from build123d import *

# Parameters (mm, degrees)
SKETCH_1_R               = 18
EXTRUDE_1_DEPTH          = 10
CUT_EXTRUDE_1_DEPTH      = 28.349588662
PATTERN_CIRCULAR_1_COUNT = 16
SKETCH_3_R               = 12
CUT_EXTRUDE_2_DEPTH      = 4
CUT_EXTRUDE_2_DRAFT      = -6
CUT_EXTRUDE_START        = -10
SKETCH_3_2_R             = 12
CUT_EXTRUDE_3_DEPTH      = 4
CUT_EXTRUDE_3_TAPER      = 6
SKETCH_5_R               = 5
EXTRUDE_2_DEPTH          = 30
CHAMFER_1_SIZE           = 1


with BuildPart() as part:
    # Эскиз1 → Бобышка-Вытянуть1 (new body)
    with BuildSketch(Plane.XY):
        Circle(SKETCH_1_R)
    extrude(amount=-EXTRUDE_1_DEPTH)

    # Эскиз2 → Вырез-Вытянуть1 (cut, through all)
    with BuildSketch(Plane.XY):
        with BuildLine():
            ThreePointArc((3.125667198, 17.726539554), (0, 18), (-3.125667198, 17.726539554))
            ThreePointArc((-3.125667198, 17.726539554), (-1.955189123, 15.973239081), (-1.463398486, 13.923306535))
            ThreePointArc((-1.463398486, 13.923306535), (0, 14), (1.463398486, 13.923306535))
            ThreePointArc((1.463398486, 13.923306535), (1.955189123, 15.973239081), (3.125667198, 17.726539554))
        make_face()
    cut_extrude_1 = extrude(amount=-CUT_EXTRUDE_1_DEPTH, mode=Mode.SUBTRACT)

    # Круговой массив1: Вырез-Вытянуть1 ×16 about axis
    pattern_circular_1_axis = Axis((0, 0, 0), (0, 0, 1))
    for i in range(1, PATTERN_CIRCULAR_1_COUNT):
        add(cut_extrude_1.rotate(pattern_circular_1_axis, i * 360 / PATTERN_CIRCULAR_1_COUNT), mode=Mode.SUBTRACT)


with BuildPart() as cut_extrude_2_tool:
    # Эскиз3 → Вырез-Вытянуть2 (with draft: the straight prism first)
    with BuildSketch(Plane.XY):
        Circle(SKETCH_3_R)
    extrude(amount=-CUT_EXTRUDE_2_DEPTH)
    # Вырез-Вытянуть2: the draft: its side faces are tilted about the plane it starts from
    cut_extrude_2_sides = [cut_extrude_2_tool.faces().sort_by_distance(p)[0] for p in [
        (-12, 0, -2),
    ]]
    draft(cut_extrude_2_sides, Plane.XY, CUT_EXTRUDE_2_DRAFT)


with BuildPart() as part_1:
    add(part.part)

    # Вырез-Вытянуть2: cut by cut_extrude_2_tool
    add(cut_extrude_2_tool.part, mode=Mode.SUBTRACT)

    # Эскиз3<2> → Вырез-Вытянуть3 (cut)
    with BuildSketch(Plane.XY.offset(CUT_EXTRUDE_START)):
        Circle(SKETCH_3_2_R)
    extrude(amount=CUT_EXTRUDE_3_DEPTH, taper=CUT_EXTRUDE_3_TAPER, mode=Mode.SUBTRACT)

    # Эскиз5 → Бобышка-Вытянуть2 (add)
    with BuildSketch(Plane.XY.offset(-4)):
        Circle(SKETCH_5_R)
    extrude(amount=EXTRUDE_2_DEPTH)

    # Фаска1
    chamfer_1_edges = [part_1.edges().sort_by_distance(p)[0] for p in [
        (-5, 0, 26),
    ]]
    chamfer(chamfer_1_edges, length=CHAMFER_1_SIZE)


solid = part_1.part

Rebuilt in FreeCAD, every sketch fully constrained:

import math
import FreeCAD as App
import Part
import Sketcher
from FreeCAD import Vector


def edges_at(feature, points):
    """Names of the edges that pass closest to the given points."""
    edges = feature.Shape.Edges
    near = lambda p: min(range(len(edges)), key=lambda i: edges[i].distToShape(Part.Vertex(*p))[0])
    return sorted({f"Edge{near(p) + 1}" for p in points})


def faces_at(feature, points):
    """Names of the faces that lie closest to the given points."""
    faces = feature.Shape.Faces
    near = lambda p: min(range(len(faces)), key=lambda i: faces[i].distToShape(Part.Vertex(*p))[0])
    return sorted({f"Face{near(p) + 1}" for p in points})

doc = App.newDocument("Part")
params = doc.addObject("Spreadsheet::Sheet", "Params")
for row, (alias, value) in enumerate([
    ("sketch1_diameter", "36 mm"),
    ("pad1_length", "10 mm"),
    ("sketch2_radius", "18 mm"),
    ("sketch2_radius2", "6 mm"),
    ("sketch2_radius3", "14 mm"),
    ("sketch3_diameter", "24 mm"),
    ("pad2_length", "4 mm"),
    ("draft_angle", "6 deg"),
    ("sketch4_diameter", "24 mm"),
    ("pocket2_length", "4 mm"),
    ("pocket2_taper", "-6 deg"),
    ("sketch5_diameter", "10 mm"),
    ("pad3_length", "30 mm"),
    ("chamfer_size", "1 mm"),
], start=1):
    params.set(f"A{row}", alias)
    params.set(f"B{row}", "=" + value)
    params.setAlias(f"B{row}", alias)

body = doc.addObject("PartDesign::Body", "Body")

# Sketch on XY plane
sketch1 = body.newObject("Sketcher::SketchObject", "Sketch")
sketch1.AttachmentSupport = (doc.getObject("XY_Plane"), [""])
sketch1.MapMode = "FlatFace"
sketch1.addGeometry(Part.Circle(Vector(0, 0, 0), Vector(0, 0, 1), 18), False)
sketch1.addConstraint(Sketcher.Constraint("Coincident", 0, 3, -1, 1))
sketch1.addConstraint(Sketcher.Constraint("Diameter", 0, 36.0))
sketch1.setExpression("Constraints[1]", "Params.sketch1_diameter")
pad1 = body.newObject("PartDesign::Pad", "Pad")
pad1.Profile = sketch1
pad1.setExpression("Length", "Params.pad1_length")
pad1.Reversed = True

# Sketch on XY plane
sketch2 = body.newObject("Sketcher::SketchObject", "Sketch001")
sketch2.AttachmentSupport = (doc.getObject("XY_Plane"), [""])
sketch2.MapMode = "FlatFace"
sketch2.addGeometry(Part.ArcOfCircle(Part.Circle(Vector(0, 0, 0), Vector(0, 0, 1), 18), math.radians(80), math.radians(100)), False)
sketch2.addGeometry(Part.ArcOfCircle(Part.Circle(Vector(-7.453006, 13.570323, 0), Vector(0, 0, 1), 6), math.radians(3.372691), math.radians(43.844438)), False)
sketch2.addGeometry(Part.ArcOfCircle(Part.Circle(Vector(0, 0, 0), Vector(0, 0, 1), 14), math.radians(84), math.radians(96)), False)
sketch2.addGeometry(Part.ArcOfCircle(Part.Circle(Vector(7.453006, 13.570323, 0), Vector(0, 0, 1), 6), math.radians(136.155562), math.radians(176.627309)), False)
sketch2.addConstraint(Sketcher.Constraint("Coincident", 0, 2, 1, 2))
sketch2.addConstraint(Sketcher.Constraint("Coincident", 1, 1, 2, 2))
sketch2.addConstraint(Sketcher.Constraint("Coincident", 2, 1, 3, 2))
sketch2.addConstraint(Sketcher.Constraint("Coincident", 3, 1, 0, 1))
sketch2.addConstraint(Sketcher.Constraint("Coincident", 0, 3, -1, 1))
sketch2.addConstraint(Sketcher.Constraint("Coincident", 2, 3, -1, 1))
sketch2.addConstraint(Sketcher.Constraint("Equal", 1, 3))
sketch2.addConstraint(Sketcher.Constraint("Symmetric", 1, 3, 3, 3, -2))
sketch2.addConstraint(Sketcher.Constraint("Radius", 0, 18.0))
sketch2.addConstraint(Sketcher.Constraint("Radius", 1, 6.0))
sketch2.addConstraint(Sketcher.Constraint("Radius", 2, 14.0))
sketch2.addConstraint(Sketcher.Constraint("DistanceX", 1, 1, -1, 1, 1.463398))
sketch2.addConstraint(Sketcher.Constraint("DistanceY", -1, 1, 0, 2, 17.72654))
sketch2.setExpression("Constraints[8]", "Params.sketch2_radius")
sketch2.setExpression("Constraints[9]", "Params.sketch2_radius2")
sketch2.setExpression("Constraints[10]", "Params.sketch2_radius3")
pocket1 = body.newObject("PartDesign::Pocket", "Pocket")
pocket1.Profile = sketch2
pocket1.Type = "ThroughAll"
doc.recompute()

polarpattern = body.newObject("PartDesign::PolarPattern", "PolarPattern")
polarpattern.Originals = [pocket1]
polarpattern.Axis = (doc.getObject("Z_Axis"), [""])
polarpattern.Angle = 360
polarpattern.Occurrences = 16
body.Tip = polarpattern
body2 = doc.addObject("PartDesign::Body", "Body001")

# Sketch on XY plane
sketch3 = body2.newObject("Sketcher::SketchObject", "Sketch002")
sketch3.AttachmentSupport = (doc.getObject("XY_Plane001"), [""])
sketch3.MapMode = "FlatFace"
sketch3.addGeometry(Part.Circle(Vector(0, 0, 0), Vector(0, 0, 1), 12), False)
sketch3.addConstraint(Sketcher.Constraint("Coincident", 0, 3, -1, 1))
sketch3.addConstraint(Sketcher.Constraint("Diameter", 0, 24.0))
sketch3.setExpression("Constraints[1]", "Params.sketch3_diameter")
pad2 = body2.newObject("PartDesign::Pad", "Pad001")
pad2.Profile = sketch3
pad2.setExpression("Length", "Params.pad2_length")
pad2.Reversed = True
doc.recompute()

draft = body2.newObject("PartDesign::Draft", "Draft")
draft.Base = (pad2, faces_at(pad2, [(-12, 0, -2)]))
draft.NeutralPlane = (doc.getObject("XY_Plane001"), [""])
draft.setExpression("Angle", "Params.draft_angle")
draft.Reversed = True
doc.recompute()

boolean = body.newObject("PartDesign::Boolean", "Boolean")
boolean.Type = "Cut"
boolean.addObjects([body2])

# Sketch on XY plane
sketch4 = body.newObject("Sketcher::SketchObject", "Sketch003")
sketch4.AttachmentSupport = (doc.getObject("XY_Plane"), [""])
sketch4.MapMode = "FlatFace"
sketch4.AttachmentOffset = App.Placement(Vector(0, 0, -10), App.Rotation())
sketch4.addGeometry(Part.Circle(Vector(0, 0, 0), Vector(0, 0, 1), 12), False)
sketch4.addConstraint(Sketcher.Constraint("Coincident", 0, 3, -1, 1))
sketch4.addConstraint(Sketcher.Constraint("Diameter", 0, 24.0))
sketch4.setExpression("Constraints[1]", "Params.sketch4_diameter")
pocket2 = body.newObject("PartDesign::Pocket", "Pocket001")
pocket2.Profile = sketch4
pocket2.setExpression("Length", "Params.pocket2_length")
pocket2.Reversed = True
pocket2.setExpression("TaperAngle", "Params.pocket2_taper")

# Sketch on XY plane
sketch5 = body.newObject("Sketcher::SketchObject", "Sketch004")
sketch5.AttachmentSupport = (doc.getObject("XY_Plane"), [""])
sketch5.MapMode = "FlatFace"
sketch5.AttachmentOffset = App.Placement(Vector(0, 0, -4), App.Rotation())
sketch5.addGeometry(Part.Circle(Vector(0, 0, 0), Vector(0, 0, 1), 5), False)
sketch5.addConstraint(Sketcher.Constraint("Coincident", 0, 3, -1, 1))
sketch5.addConstraint(Sketcher.Constraint("Diameter", 0, 10.0))
sketch5.setExpression("Constraints[1]", "Params.sketch5_diameter")
pad3 = body.newObject("PartDesign::Pad", "Pad002")
pad3.Profile = sketch5
pad3.setExpression("Length", "Params.pad3_length")
doc.recompute()

chamfer = body.newObject("PartDesign::Chamfer", "Chamfer")
chamfer.Base = (pad3, edges_at(pad3, [(-5, 0, 26)]))
chamfer.setExpression("Size", "Params.chamfer_size")

doc.recompute()
